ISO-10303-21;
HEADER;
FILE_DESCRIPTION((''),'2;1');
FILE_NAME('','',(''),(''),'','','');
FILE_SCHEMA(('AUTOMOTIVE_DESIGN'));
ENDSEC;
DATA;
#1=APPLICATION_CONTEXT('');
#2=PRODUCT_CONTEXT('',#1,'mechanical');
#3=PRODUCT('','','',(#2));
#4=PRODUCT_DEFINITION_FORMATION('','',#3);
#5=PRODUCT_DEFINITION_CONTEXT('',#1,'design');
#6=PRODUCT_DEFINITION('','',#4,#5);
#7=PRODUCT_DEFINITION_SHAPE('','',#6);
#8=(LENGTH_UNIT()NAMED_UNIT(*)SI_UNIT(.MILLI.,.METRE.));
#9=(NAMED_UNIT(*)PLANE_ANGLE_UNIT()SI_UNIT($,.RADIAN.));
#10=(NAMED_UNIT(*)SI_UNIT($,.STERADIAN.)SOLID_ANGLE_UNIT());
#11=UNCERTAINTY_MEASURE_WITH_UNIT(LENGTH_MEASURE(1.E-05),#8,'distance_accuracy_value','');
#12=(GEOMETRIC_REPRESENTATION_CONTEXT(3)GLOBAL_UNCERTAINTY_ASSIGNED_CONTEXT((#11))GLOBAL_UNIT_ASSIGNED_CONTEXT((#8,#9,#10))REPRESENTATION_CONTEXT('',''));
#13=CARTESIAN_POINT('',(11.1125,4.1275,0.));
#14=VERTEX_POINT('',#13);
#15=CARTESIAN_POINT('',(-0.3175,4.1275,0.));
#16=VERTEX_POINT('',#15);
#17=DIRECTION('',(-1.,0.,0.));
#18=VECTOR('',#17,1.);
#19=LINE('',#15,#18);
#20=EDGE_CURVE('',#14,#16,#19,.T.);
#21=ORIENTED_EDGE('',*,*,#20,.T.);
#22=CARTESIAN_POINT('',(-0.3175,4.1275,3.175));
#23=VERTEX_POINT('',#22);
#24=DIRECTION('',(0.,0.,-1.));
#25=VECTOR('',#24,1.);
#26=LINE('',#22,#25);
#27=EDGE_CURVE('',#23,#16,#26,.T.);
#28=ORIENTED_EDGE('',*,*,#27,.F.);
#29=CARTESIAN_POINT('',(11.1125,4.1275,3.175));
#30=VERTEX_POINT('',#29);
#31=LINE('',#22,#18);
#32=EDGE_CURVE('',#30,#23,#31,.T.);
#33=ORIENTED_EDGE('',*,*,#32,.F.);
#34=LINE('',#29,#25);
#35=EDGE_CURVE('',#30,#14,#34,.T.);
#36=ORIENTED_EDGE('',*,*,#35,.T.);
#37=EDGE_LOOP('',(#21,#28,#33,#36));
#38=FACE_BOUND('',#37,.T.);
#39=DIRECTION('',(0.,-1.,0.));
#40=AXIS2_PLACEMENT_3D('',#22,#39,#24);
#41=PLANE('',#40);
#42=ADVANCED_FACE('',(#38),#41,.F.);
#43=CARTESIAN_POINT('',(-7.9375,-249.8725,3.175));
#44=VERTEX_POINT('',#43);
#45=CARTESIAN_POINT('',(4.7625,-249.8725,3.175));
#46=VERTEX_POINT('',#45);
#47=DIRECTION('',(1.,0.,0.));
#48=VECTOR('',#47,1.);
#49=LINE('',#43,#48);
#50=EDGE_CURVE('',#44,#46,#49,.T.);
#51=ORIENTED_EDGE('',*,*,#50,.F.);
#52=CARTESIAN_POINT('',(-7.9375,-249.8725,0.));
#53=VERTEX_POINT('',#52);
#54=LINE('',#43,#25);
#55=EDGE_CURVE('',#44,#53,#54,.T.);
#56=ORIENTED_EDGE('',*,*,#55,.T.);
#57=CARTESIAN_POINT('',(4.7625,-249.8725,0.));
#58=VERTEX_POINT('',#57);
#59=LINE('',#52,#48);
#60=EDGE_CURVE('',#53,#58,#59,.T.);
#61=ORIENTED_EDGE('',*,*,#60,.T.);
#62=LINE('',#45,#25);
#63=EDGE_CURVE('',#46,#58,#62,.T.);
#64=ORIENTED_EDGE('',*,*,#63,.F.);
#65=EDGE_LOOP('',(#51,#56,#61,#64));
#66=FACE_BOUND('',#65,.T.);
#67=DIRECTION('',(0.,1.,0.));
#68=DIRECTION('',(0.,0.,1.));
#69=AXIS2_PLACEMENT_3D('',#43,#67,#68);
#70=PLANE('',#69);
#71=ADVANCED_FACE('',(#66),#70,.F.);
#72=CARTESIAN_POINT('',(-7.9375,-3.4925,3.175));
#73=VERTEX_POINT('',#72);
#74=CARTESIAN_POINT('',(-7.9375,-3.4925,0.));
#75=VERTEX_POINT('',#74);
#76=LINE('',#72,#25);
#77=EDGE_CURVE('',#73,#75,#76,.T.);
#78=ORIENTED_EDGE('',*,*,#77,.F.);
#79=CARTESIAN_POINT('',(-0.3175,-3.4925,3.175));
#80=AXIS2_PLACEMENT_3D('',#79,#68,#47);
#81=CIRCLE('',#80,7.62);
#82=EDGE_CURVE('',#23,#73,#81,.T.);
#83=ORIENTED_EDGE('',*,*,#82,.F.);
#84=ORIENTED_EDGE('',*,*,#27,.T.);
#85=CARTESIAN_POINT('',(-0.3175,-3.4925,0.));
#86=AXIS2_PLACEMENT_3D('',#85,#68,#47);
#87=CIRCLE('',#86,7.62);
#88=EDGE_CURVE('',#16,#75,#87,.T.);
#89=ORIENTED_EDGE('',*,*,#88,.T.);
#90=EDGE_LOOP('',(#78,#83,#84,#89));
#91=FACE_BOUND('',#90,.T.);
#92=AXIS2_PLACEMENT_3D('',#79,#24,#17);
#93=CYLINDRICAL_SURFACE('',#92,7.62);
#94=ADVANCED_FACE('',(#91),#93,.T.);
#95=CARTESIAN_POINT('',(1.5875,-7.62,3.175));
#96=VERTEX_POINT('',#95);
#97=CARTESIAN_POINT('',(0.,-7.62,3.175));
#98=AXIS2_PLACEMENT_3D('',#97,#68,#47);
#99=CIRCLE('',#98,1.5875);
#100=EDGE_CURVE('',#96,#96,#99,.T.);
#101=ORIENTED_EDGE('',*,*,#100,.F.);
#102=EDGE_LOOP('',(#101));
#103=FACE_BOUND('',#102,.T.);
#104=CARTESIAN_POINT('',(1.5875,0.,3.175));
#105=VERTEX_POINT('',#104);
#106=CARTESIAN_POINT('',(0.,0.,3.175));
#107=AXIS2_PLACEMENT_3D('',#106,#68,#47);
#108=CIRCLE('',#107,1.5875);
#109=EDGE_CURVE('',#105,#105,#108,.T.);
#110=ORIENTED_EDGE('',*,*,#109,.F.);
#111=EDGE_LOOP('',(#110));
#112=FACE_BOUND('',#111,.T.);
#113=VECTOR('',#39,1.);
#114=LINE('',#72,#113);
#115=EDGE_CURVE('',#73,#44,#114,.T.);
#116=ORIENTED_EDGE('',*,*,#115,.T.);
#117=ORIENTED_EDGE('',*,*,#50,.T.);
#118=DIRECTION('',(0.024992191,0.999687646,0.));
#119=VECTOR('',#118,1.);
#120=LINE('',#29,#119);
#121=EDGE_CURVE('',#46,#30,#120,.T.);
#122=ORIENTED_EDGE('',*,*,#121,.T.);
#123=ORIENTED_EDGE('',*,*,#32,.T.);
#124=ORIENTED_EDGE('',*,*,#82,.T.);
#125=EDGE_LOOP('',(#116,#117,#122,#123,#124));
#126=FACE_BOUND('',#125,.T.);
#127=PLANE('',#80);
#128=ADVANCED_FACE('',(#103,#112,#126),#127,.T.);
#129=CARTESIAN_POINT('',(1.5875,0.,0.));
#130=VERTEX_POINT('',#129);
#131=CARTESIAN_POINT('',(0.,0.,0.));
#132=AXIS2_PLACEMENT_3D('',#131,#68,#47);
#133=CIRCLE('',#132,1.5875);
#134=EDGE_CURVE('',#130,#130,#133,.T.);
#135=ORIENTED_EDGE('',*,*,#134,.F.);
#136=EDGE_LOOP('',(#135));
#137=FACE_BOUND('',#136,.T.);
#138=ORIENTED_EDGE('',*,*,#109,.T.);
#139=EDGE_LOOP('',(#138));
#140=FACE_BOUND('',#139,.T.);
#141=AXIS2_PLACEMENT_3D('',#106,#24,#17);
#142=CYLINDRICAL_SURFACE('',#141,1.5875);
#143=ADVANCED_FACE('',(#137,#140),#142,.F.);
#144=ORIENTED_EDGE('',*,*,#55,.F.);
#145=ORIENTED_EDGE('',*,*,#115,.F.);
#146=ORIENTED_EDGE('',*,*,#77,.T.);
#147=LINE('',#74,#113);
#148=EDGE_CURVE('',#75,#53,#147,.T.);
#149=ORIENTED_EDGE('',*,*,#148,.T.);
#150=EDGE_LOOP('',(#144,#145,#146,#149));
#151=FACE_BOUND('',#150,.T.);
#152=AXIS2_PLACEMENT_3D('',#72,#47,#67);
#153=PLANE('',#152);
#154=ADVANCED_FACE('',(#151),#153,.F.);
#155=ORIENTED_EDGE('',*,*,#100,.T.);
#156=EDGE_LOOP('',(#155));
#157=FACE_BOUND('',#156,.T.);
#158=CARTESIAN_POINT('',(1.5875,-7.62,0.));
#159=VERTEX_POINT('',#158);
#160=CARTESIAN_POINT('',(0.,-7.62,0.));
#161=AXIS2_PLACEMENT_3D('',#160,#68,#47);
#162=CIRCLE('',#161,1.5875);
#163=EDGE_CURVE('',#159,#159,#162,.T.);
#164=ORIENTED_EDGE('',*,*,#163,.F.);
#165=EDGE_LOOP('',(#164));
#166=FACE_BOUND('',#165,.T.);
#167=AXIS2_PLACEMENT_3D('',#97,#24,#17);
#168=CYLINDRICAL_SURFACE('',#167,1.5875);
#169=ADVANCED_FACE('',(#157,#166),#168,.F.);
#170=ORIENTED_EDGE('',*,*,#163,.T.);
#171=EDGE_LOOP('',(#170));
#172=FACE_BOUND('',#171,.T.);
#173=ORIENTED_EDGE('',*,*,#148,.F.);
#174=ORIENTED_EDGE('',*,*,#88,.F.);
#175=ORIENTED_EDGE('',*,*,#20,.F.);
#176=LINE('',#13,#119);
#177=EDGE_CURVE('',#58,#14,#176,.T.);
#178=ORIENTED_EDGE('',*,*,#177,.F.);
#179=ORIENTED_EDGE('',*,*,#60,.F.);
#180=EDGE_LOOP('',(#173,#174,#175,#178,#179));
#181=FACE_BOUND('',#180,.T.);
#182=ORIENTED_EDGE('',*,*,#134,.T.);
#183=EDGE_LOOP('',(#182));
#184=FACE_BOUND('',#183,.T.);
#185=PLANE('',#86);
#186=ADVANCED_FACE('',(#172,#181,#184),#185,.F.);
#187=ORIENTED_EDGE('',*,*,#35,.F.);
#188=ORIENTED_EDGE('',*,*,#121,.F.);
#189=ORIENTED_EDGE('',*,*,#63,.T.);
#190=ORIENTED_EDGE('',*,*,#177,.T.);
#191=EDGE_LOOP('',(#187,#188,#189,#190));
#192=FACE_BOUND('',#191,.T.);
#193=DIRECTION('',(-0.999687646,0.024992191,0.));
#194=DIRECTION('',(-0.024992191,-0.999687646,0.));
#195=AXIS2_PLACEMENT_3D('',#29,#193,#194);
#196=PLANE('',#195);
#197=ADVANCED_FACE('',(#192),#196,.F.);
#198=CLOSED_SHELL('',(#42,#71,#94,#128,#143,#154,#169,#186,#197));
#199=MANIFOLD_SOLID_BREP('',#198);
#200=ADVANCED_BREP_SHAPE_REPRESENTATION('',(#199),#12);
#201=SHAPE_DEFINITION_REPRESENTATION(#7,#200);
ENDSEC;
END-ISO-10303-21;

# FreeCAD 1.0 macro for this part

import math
import FreeCAD as App
import Part
import Sketcher
from FreeCAD import Vector
Q = App.Units.Quantity

doc = App.newDocument("Part")
params = doc.addObject("Spreadsheet::Sheet", "Params")
for row, (alias, value) in enumerate([
    ("sketch1_radius", "0.3 in"),
    ("sketch1_diameter", "0.125 in"),
    ("sketch1_width", "0.5 in"),
    ("sketch1_height", "9.7 in"),
    ("sketch1_width2", "0.45 in"),
    ("pad1_length", "0.125 in"),
], start=1):
    params.set(f"A{row}", alias)
    params.set(f"B{row}", "=" + value)
    params.setAlias(f"B{row}", alias)

body = doc.addObject("PartDesign::Body", "Body")

sketch1 = body.newObject("Sketcher::SketchObject", "Sketch")
sketch1.AttachmentSupport = (doc.getObject("XY_Plane"), [""])
sketch1.MapMode = "FlatFace"
sketch1.addGeometry([
    Part.LineSegment(Vector(11.1, 4.1, 0), Vector(-0.3, 4.1, 0)),
    Part.ArcOfCircle(Part.Circle(Vector(-0.3, -3.5, 0), Vector(0, 0, 1), 7.6), math.radians(90), math.radians(180)),
    Part.LineSegment(Vector(-7.9, -3.5, 0), Vector(-7.9, -249.9, 0)),
    Part.LineSegment(Vector(-7.9, -249.9, 0), Vector(4.8, -249.9, 0)),
    Part.LineSegment(Vector(4.8, -249.9, 0), Vector(11.1, 4.1, 0)),
    Part.Circle(Vector(0, -7.6, 0), Vector(0, 0, 1), 1.6),
    Part.Circle(Vector(0, 0, 0), Vector(0, 0, 1), 1.6),
], False)
sketch1.addConstraint([
    Sketcher.Constraint("Tangent", 0, 2, 1, 1),
    Sketcher.Constraint("Tangent", 1, 2, 2, 1),
    Sketcher.Constraint("Coincident", 2, 2, 3, 1),
    Sketcher.Constraint("Coincident", 3, 2, 4, 1),
    Sketcher.Constraint("Coincident", 4, 2, 0, 1),
    Sketcher.Constraint("Horizontal", 0),
    Sketcher.Constraint("Vertical", 2),
    Sketcher.Constraint("Horizontal", 3),
    Sketcher.Constraint("Coincident", 6, 3, -1, 1),
    Sketcher.Constraint("Equal", 5, 6),
    Sketcher.Constraint("PointOnObject", 5, 3, -2),
    Sketcher.Constraint("Radius", 1, Q("0.3 in")),
    Sketcher.Constraint("Diameter", 5, Q("0.125 in")),
    Sketcher.Constraint("DistanceX", 3, 1, 3, 2, Q("0.5 in")),
    Sketcher.Constraint("DistanceY", 2, 2, 2, 1, Q("9.7 in")),
    Sketcher.Constraint("DistanceX", 0, 2, 0, 1, Q("0.45 in")),
    Sketcher.Constraint("DistanceY", 5, 3, -1, 1, Q("0.3 in")),
    Sketcher.Constraint("DistanceX", 1, 2, -1, 1, Q("0.3125 in")),
    Sketcher.Constraint("DistanceY", 1, 3, -1, 1, Q("0.1375 in")),
])
sketch1.setExpression("Constraints[11]", "Params.sketch1_radius")
sketch1.setExpression("Constraints[12]", "Params.sketch1_diameter")
sketch1.setExpression("Constraints[13]", "Params.sketch1_width")
sketch1.setExpression("Constraints[14]", "Params.sketch1_height")
sketch1.setExpression("Constraints[15]", "Params.sketch1_width2")
pad1 = body.newObject("PartDesign::Pad", "Pad")
pad1.Profile = sketch1
pad1.setExpression("Length", "Params.pad1_length")

doc.recompute()
